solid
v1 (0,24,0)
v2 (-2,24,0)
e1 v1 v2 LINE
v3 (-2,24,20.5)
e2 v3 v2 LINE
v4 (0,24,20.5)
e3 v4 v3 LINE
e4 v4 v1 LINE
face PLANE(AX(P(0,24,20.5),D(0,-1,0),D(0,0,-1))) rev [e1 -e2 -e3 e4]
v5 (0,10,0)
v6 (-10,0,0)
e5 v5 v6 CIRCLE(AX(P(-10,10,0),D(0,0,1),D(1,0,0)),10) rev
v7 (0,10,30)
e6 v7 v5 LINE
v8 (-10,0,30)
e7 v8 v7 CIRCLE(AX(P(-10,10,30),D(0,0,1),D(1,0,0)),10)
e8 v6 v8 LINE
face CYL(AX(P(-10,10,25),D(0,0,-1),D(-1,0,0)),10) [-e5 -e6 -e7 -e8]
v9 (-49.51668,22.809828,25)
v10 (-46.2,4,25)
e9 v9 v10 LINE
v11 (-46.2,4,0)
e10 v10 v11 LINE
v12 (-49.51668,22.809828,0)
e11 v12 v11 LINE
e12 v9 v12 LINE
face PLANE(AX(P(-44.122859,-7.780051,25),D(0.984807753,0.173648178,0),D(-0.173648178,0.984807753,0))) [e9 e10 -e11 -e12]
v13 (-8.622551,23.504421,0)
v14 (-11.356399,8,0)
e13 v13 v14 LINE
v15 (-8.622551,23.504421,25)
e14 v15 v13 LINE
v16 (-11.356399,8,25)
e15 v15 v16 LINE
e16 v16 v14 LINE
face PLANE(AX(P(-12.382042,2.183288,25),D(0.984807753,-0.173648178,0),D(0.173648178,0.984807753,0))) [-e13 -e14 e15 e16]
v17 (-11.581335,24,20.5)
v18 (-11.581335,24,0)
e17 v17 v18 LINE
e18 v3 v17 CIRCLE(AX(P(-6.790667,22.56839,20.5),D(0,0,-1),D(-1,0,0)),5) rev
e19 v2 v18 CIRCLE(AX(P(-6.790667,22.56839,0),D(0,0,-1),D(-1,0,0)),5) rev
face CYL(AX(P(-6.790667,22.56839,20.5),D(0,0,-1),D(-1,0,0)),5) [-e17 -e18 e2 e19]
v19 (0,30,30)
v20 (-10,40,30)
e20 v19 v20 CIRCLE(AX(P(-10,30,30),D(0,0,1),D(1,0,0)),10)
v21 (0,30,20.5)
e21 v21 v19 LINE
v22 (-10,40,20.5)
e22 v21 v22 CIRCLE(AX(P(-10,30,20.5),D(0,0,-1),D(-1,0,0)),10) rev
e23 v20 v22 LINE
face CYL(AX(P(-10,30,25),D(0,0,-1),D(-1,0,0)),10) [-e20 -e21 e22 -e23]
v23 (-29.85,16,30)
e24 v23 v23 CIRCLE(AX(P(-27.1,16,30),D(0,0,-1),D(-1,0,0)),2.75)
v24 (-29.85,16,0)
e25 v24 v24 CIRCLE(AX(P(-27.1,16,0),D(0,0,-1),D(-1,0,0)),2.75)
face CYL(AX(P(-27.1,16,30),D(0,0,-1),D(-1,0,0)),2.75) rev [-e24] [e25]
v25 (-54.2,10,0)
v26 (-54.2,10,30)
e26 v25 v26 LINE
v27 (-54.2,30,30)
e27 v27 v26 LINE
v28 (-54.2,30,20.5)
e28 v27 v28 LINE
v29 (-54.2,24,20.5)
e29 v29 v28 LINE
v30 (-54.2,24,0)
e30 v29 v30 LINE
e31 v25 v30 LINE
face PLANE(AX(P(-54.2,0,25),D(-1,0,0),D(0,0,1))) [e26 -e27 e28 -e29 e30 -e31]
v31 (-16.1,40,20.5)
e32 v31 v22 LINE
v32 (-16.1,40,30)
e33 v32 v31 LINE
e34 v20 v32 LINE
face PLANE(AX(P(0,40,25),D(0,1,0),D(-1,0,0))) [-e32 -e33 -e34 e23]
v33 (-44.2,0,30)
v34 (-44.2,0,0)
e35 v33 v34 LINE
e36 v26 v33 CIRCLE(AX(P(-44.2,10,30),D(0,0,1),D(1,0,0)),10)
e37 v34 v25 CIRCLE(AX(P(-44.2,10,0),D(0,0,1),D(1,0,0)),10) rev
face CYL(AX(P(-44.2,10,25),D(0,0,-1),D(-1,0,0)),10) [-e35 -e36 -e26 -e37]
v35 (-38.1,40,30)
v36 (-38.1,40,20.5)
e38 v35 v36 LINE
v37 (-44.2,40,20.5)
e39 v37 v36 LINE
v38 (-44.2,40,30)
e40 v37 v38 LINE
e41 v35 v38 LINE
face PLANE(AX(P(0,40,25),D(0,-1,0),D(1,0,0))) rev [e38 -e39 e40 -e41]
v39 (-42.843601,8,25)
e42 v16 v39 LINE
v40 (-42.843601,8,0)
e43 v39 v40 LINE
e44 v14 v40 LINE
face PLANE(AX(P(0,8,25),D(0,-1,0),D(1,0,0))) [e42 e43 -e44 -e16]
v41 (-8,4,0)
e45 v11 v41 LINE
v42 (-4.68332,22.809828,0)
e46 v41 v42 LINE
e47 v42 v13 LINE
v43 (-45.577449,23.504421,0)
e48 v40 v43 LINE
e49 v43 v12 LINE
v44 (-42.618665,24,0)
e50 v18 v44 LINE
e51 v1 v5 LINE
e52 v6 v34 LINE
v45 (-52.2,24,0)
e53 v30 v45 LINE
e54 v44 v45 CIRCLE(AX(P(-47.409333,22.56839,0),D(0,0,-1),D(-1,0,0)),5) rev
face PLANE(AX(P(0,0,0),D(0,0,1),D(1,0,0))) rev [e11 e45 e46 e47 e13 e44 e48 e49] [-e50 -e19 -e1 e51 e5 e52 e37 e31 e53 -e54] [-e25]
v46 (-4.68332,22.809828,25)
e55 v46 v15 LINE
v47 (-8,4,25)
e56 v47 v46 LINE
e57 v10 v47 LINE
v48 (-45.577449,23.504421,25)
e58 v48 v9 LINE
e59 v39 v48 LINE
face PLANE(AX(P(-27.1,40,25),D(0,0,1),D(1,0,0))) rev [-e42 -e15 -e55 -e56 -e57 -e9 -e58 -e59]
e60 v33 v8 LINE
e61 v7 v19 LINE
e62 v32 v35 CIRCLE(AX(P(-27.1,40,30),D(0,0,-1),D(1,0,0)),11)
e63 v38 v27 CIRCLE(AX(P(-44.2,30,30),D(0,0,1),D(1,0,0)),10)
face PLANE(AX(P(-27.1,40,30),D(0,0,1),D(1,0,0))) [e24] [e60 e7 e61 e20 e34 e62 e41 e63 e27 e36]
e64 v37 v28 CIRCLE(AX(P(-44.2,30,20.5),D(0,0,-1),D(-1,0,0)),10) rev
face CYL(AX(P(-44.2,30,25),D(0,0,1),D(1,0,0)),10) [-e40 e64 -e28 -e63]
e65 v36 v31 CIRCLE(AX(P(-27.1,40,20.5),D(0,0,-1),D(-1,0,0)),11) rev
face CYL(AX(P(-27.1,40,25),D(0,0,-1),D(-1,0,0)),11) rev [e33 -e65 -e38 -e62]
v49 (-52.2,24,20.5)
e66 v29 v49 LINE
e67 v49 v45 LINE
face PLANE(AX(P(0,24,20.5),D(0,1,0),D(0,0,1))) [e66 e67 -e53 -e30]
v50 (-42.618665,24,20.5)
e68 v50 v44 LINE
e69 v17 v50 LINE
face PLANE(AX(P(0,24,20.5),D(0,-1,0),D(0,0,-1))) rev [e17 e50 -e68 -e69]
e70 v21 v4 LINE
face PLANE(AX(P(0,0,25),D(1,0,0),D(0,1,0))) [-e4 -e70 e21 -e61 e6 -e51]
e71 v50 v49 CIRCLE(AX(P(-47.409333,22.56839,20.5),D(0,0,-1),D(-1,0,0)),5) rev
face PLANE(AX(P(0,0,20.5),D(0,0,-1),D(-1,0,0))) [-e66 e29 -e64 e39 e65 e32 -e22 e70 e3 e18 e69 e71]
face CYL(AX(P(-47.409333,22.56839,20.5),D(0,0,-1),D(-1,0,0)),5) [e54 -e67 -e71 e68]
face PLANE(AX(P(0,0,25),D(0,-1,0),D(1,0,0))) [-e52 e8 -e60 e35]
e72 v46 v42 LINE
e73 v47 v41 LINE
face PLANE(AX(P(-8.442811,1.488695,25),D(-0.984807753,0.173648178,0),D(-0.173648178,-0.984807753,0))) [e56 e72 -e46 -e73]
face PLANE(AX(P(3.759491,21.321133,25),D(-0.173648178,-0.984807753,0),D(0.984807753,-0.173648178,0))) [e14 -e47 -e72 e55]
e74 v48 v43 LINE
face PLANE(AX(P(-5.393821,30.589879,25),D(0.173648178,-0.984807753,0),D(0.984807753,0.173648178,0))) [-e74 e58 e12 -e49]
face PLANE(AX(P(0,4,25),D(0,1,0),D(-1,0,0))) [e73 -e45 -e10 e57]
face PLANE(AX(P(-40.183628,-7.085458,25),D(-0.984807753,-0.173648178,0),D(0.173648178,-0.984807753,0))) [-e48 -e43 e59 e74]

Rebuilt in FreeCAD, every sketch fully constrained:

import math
import FreeCAD as App
import Part
import Sketcher

V = App.Vector
Q = App.Units.Quantity


def edges_at(feature, points):
    """Names of the edges that pass closest to the given points."""
    edges = feature.Shape.Edges
    near = lambda p: min(range(len(edges)), key=lambda i: edges[i].distToShape(Part.Vertex(*p))[0])
    return sorted({f"Edge{near(p) + 1}" for p in points})


def add_polygon(sketch, points):
    """Adds a closed chain of lines whose ends are joined by coincident constraints."""
    first, n = sketch.GeometryCount, len(points)
    for a, b in zip(points, points[1:] + points[:1]):
        sketch.addGeometry(Part.LineSegment(App.Vector(*a, 0), App.Vector(*b, 0)), False)
    for i in range(n):
        sketch.addConstraint(Sketcher.Constraint("Coincident", first + i, 2, first + (i + 1) % n, 1))

doc = App.newDocument("Part")
body = doc.addObject("PartDesign::Body", "Body")

sketch1 = doc.addObject("Sketcher::SketchObject", "Sketch")
body.addObject(sketch1)
sketch1.AttachmentSupport = (doc.XY_Plane, [""])
sketch1.MapMode = "FlatFace"
sketch1.addGeometry(Part.LineSegment(V(-54.2, 0, 0), V(0, 0, 0)), False)
sketch1.addGeometry(Part.LineSegment(V(0, 0, 0), V(0, 40, 0)), False)
sketch1.addGeometry(Part.LineSegment(V(0, 40, 0), V(-16.1, 40, 0)), False)
sketch1.addGeometry(Part.ArcOfCircle(Part.Circle(V(-27.1, 40, 0), V(0, 0, 1), 11), math.radians(180), math.radians(360)), False)
sketch1.addGeometry(Part.LineSegment(V(-38.1, 40, 0), V(-54.2, 40, 0)), False)
sketch1.addGeometry(Part.LineSegment(V(-54.2, 40, 0), V(-54.2, 0, 0)), False)
add_polygon(sketch1, [(-8, 4), (-46.2, 4), (-49.51668, 22.809828), (-45.577449, 23.504421), (-42.843601, 8), (-11.356399, 8), (-8.622551, 23.504421), (-4.68332, 22.809828)])
sketch1.addConstraint([
    Sketcher.Constraint("Coincident", 0, 2, 1, 1),
    Sketcher.Constraint("Coincident", 1, 2, 2, 1),
    Sketcher.Constraint("Coincident", 2, 2, 3, 2),
    Sketcher.Constraint("Coincident", 3, 1, 4, 1),
    Sketcher.Constraint("Coincident", 4, 2, 5, 1),
    Sketcher.Constraint("Coincident", 5, 2, 0, 1),
    Sketcher.Constraint("Horizontal", 0),
    Sketcher.Constraint("Vertical", 1),
    Sketcher.Constraint("Horizontal", 2),
    Sketcher.Constraint("Horizontal", 4),
    Sketcher.Constraint("Vertical", 5),
    Sketcher.Constraint("Horizontal", 6),
    Sketcher.Constraint("Horizontal", 10),
    Sketcher.Constraint("Coincident", 0, 2, -1, 1),
    Sketcher.Constraint("Perpendicular", 7, 8),
    Sketcher.Constraint("Perpendicular", 8, 9),
    Sketcher.Constraint("Perpendicular", 11, 12),
    Sketcher.Constraint("Perpendicular", 12, 13),
    Sketcher.Constraint("Horizontal", 3, 3, 1, 2),
    Sketcher.Constraint("Horizontal", 2, 2, 3, 1),
    Sketcher.Constraint("Horizontal", 8, 2, 11, 2),
    Sketcher.Constraint("Horizontal", 7, 2, 12, 2),
    Sketcher.Constraint("Equal", 2, 4),
    Sketcher.Constraint("Equal", 9, 11),
    Sketcher.Constraint("Radius", 3, 11.0),
    Sketcher.Constraint("DistanceY", 1, 1, 1, 2, 40.0),
    Sketcher.Constraint("Angle", 7, Q("100 deg")),
    Sketcher.Constraint("Distance", 8, 4.0),
    Sketcher.Constraint("DistanceX", 0, 1, 0, 2, 54.2),
    Sketcher.Constraint("DistanceX", 6, 2, 6, 1, 38.2),
    Sketcher.Constraint("DistanceY", -1, 1, 6, 2, 4.0),
    Sketcher.Constraint("DistanceY", -1, 1, 9, 2, 8.0),
    Sketcher.Constraint("DistanceX", 13, 2, -1, 1, 8.0),
    Sketcher.Constraint("Distance", 7, 19.1),
])
pad1 = doc.addObject("PartDesign::Pad", "Pad")
body.addObject(pad1)
pad1.Profile = sketch1
pad1.Length = 25

sketch2 = doc.addObject("Sketcher::SketchObject", "Sketch001")
body.addObject(sketch2)
sketch2.AttachmentSupport = (doc.XY_Plane, [""])
sketch2.MapMode = "FlatFace"
sketch2.AttachmentOffset = App.Placement(V(0, 0, 25), App.Rotation())
sketch2.addGeometry([
    Part.LineSegment(V(-54.2, 40, 0), V(-54.2, 0, 0)),
    Part.LineSegment(V(-54.2, 0, 0), V(0, 0, 0)),
    Part.LineSegment(V(0, 0, 0), V(0, 40, 0)),
    Part.LineSegment(V(0, 40, 0), V(-16.1, 40, 0)),
    Part.ArcOfCircle(Part.Circle(V(-27.1, 40, 0), V(0, 0, 1), 11), math.radians(180), math.radians(360)),
    Part.LineSegment(V(-38.1, 40, 0), V(-54.2, 40, 0)),
], False)
sketch2.addConstraint([
    Sketcher.Constraint("Coincident", 0, 2, 1, 1),
    Sketcher.Constraint("Coincident", 1, 2, 2, 1),
    Sketcher.Constraint("Coincident", 2, 2, 3, 1),
    Sketcher.Constraint("Coincident", 3, 2, 4, 2),
    Sketcher.Constraint("Coincident", 4, 1, 5, 1),
    Sketcher.Constraint("Coincident", 5, 2, 0, 1),
    Sketcher.Constraint("Vertical", 0),
    Sketcher.Constraint("Horizontal", 1),
    Sketcher.Constraint("Vertical", 2),
    Sketcher.Constraint("Horizontal", 3),
    Sketcher.Constraint("Horizontal", 5),
    Sketcher.Constraint("Coincident", 1, 2, -1, 1),
    Sketcher.Constraint("Horizontal", 4, 3, 2, 2),
    Sketcher.Constraint("Horizontal", 3, 2, 4, 1),
    Sketcher.Constraint("Equal", 3, 5),
    Sketcher.Constraint("Radius", 4, 11.0),
    Sketcher.Constraint("DistanceY", 0, 2, 0, 1, 40.0),
    Sketcher.Constraint("DistanceX", 1, 1, 1, 2, 54.2),
])
pad2 = doc.addObject("PartDesign::Pad", "Pad001")
body.addObject(pad2)
pad2.Profile = sketch2
pad2.Length = 5
doc.recompute()

fillet = doc.addObject("PartDesign::Fillet", "Fillet")
body.addObject(fillet)
fillet.Base = (pad2, edges_at(pad2, [(0, 0, 15), (-54.2, 0, 15)]))
fillet.Radius = 10
doc.recompute()

fillet2 = doc.addObject("PartDesign::Fillet", "Fillet001")
body.addObject(fillet2)
fillet2.Base = (fillet, edges_at(fillet, [(-54.2, 40, 15), (0, 40, 15)]))
fillet2.Radius = 10

sketch3 = doc.addObject("Sketcher::SketchObject", "Sketch002")
body.addObject(sketch3)
sketch3.AttachmentSupport = (doc.XY_Plane, [""])
sketch3.MapMode = "FlatFace"
sketch3.addGeometry([
    Part.ArcOfCircle(Part.Circle(V(-27.1, 40, 0), V(0, 0, 1), 11), math.radians(180), math.radians(360)),
    Part.LineSegment(V(-16.1, 40, 0), V(0, 40, 0)),
    Part.LineSegment(V(0, 40, 0), V(0, 24, 0)),
    Part.LineSegment(V(0, 24, 0), V(-2, 24, 0)),
    Part.ArcOfCircle(Part.Circle(V(-6.790667, 22.56839, 0), V(0, 0, 1), 5), math.radians(16.637886), math.radians(163.362114)),
    Part.LineSegment(V(-11.581335, 24, 0), V(-42.618665, 24, 0)),
    Part.ArcOfCircle(Part.Circle(V(-47.409333, 22.56839, 0), V(0, 0, 1), 5), math.radians(16.637886), math.radians(163.362114)),
    Part.LineSegment(V(-52.2, 24, 0), V(-54.2, 24, 0)),
    Part.LineSegment(V(-54.2, 24, 0), V(-54.2, 40, 0)),
    Part.LineSegment(V(-54.2, 40, 0), V(-38.1, 40, 0)),
], False)
sketch3.addConstraint([
    Sketcher.Constraint("Coincident", 0, 2, 1, 1),
    Sketcher.Constraint("Coincident", 1, 2, 2, 1),
    Sketcher.Constraint("Coincident", 2, 2, 3, 1),
    Sketcher.Constraint("Coincident", 3, 2, 4, 1),
    Sketcher.Constraint("Coincident", 4, 2, 5, 1),
    Sketcher.Constraint("Coincident", 5, 2, 6, 1),
    Sketcher.Constraint("Coincident", 6, 2, 7, 1),
    Sketcher.Constraint("Coincident", 7, 2, 8, 1),
    Sketcher.Constraint("Coincident", 8, 2, 9, 1),
    Sketcher.Constraint("Coincident", 9, 2, 0, 1),
    Sketcher.Constraint("Horizontal", 1),
    Sketcher.Constraint("Vertical", 2),
    Sketcher.Constraint("Horizontal", 3),
    Sketcher.Constraint("Horizontal", 5),
    Sketcher.Constraint("Horizontal", 7),
    Sketcher.Constraint("Vertical", 8),
    Sketcher.Constraint("Horizontal", 9),
    Sketcher.Constraint("Equal", 4, 6),
    Sketcher.Constraint("PointOnObject", 1, 2, -2),
    Sketcher.Constraint("Horizontal", 4, 3, 6, 3),
    Sketcher.Constraint("Horizontal", 3, 2, 4, 2),
    Sketcher.Constraint("Horizontal", 5, 2, 6, 2),
    Sketcher.Constraint("Horizontal", 1, 2, 8, 2),
    Sketcher.Constraint("Equal", 3, 7),
    Sketcher.Constraint("Equal", 1, 9),
    Sketcher.Constraint("Radius", 0, 11.0),
    Sketcher.Constraint("Radius", 4, 5.0),
    Sketcher.Constraint("DistanceX", 3, 2, 3, 1, 2.0),
    Sketcher.Constraint("DistanceY", 2, 2, 2, 1, 16.0),
    Sketcher.Constraint("DistanceX", 1, 1, 1, 2, 16.1),
    Sketcher.Constraint("DistanceY", -1, 1, 0, 3, 40.0),
    Sketcher.Constraint("DistanceY", -1, 1, 0, 2, 40.0),
    Sketcher.Constraint("DistanceX", 5, 2, 4, 3, 35.827998),
])
pocket1 = doc.addObject("PartDesign::Pocket", "Pocket")
body.addObject(pocket1)
pocket1.Profile = sketch3
pocket1.Length = 20.5
pocket1.Reversed = True

sketch4 = doc.addObject("Sketcher::SketchObject", "Sketch003")
body.addObject(sketch4)
sketch4.AttachmentSupport = (doc.XY_Plane, [""])
sketch4.MapMode = "FlatFace"
sketch4.addGeometry(Part.Circle(V(-27.1, 16, 0), V(0, 0, 1), 2.75), False)
sketch4.addConstraint([
    Sketcher.Constraint("Diameter", 0, 5.5),
    Sketcher.Constraint("DistanceY", -1, 1, 0, 3, 16.0),
    Sketcher.Constraint("DistanceX", 0, 3, -1, 1, 27.1),
])
pocket2 = doc.addObject("PartDesign::Pocket", "Pocket001")
body.addObject(pocket2)
pocket2.Profile = sketch4
pocket2.Length = 30
pocket2.Reversed = True

doc.recompute()
